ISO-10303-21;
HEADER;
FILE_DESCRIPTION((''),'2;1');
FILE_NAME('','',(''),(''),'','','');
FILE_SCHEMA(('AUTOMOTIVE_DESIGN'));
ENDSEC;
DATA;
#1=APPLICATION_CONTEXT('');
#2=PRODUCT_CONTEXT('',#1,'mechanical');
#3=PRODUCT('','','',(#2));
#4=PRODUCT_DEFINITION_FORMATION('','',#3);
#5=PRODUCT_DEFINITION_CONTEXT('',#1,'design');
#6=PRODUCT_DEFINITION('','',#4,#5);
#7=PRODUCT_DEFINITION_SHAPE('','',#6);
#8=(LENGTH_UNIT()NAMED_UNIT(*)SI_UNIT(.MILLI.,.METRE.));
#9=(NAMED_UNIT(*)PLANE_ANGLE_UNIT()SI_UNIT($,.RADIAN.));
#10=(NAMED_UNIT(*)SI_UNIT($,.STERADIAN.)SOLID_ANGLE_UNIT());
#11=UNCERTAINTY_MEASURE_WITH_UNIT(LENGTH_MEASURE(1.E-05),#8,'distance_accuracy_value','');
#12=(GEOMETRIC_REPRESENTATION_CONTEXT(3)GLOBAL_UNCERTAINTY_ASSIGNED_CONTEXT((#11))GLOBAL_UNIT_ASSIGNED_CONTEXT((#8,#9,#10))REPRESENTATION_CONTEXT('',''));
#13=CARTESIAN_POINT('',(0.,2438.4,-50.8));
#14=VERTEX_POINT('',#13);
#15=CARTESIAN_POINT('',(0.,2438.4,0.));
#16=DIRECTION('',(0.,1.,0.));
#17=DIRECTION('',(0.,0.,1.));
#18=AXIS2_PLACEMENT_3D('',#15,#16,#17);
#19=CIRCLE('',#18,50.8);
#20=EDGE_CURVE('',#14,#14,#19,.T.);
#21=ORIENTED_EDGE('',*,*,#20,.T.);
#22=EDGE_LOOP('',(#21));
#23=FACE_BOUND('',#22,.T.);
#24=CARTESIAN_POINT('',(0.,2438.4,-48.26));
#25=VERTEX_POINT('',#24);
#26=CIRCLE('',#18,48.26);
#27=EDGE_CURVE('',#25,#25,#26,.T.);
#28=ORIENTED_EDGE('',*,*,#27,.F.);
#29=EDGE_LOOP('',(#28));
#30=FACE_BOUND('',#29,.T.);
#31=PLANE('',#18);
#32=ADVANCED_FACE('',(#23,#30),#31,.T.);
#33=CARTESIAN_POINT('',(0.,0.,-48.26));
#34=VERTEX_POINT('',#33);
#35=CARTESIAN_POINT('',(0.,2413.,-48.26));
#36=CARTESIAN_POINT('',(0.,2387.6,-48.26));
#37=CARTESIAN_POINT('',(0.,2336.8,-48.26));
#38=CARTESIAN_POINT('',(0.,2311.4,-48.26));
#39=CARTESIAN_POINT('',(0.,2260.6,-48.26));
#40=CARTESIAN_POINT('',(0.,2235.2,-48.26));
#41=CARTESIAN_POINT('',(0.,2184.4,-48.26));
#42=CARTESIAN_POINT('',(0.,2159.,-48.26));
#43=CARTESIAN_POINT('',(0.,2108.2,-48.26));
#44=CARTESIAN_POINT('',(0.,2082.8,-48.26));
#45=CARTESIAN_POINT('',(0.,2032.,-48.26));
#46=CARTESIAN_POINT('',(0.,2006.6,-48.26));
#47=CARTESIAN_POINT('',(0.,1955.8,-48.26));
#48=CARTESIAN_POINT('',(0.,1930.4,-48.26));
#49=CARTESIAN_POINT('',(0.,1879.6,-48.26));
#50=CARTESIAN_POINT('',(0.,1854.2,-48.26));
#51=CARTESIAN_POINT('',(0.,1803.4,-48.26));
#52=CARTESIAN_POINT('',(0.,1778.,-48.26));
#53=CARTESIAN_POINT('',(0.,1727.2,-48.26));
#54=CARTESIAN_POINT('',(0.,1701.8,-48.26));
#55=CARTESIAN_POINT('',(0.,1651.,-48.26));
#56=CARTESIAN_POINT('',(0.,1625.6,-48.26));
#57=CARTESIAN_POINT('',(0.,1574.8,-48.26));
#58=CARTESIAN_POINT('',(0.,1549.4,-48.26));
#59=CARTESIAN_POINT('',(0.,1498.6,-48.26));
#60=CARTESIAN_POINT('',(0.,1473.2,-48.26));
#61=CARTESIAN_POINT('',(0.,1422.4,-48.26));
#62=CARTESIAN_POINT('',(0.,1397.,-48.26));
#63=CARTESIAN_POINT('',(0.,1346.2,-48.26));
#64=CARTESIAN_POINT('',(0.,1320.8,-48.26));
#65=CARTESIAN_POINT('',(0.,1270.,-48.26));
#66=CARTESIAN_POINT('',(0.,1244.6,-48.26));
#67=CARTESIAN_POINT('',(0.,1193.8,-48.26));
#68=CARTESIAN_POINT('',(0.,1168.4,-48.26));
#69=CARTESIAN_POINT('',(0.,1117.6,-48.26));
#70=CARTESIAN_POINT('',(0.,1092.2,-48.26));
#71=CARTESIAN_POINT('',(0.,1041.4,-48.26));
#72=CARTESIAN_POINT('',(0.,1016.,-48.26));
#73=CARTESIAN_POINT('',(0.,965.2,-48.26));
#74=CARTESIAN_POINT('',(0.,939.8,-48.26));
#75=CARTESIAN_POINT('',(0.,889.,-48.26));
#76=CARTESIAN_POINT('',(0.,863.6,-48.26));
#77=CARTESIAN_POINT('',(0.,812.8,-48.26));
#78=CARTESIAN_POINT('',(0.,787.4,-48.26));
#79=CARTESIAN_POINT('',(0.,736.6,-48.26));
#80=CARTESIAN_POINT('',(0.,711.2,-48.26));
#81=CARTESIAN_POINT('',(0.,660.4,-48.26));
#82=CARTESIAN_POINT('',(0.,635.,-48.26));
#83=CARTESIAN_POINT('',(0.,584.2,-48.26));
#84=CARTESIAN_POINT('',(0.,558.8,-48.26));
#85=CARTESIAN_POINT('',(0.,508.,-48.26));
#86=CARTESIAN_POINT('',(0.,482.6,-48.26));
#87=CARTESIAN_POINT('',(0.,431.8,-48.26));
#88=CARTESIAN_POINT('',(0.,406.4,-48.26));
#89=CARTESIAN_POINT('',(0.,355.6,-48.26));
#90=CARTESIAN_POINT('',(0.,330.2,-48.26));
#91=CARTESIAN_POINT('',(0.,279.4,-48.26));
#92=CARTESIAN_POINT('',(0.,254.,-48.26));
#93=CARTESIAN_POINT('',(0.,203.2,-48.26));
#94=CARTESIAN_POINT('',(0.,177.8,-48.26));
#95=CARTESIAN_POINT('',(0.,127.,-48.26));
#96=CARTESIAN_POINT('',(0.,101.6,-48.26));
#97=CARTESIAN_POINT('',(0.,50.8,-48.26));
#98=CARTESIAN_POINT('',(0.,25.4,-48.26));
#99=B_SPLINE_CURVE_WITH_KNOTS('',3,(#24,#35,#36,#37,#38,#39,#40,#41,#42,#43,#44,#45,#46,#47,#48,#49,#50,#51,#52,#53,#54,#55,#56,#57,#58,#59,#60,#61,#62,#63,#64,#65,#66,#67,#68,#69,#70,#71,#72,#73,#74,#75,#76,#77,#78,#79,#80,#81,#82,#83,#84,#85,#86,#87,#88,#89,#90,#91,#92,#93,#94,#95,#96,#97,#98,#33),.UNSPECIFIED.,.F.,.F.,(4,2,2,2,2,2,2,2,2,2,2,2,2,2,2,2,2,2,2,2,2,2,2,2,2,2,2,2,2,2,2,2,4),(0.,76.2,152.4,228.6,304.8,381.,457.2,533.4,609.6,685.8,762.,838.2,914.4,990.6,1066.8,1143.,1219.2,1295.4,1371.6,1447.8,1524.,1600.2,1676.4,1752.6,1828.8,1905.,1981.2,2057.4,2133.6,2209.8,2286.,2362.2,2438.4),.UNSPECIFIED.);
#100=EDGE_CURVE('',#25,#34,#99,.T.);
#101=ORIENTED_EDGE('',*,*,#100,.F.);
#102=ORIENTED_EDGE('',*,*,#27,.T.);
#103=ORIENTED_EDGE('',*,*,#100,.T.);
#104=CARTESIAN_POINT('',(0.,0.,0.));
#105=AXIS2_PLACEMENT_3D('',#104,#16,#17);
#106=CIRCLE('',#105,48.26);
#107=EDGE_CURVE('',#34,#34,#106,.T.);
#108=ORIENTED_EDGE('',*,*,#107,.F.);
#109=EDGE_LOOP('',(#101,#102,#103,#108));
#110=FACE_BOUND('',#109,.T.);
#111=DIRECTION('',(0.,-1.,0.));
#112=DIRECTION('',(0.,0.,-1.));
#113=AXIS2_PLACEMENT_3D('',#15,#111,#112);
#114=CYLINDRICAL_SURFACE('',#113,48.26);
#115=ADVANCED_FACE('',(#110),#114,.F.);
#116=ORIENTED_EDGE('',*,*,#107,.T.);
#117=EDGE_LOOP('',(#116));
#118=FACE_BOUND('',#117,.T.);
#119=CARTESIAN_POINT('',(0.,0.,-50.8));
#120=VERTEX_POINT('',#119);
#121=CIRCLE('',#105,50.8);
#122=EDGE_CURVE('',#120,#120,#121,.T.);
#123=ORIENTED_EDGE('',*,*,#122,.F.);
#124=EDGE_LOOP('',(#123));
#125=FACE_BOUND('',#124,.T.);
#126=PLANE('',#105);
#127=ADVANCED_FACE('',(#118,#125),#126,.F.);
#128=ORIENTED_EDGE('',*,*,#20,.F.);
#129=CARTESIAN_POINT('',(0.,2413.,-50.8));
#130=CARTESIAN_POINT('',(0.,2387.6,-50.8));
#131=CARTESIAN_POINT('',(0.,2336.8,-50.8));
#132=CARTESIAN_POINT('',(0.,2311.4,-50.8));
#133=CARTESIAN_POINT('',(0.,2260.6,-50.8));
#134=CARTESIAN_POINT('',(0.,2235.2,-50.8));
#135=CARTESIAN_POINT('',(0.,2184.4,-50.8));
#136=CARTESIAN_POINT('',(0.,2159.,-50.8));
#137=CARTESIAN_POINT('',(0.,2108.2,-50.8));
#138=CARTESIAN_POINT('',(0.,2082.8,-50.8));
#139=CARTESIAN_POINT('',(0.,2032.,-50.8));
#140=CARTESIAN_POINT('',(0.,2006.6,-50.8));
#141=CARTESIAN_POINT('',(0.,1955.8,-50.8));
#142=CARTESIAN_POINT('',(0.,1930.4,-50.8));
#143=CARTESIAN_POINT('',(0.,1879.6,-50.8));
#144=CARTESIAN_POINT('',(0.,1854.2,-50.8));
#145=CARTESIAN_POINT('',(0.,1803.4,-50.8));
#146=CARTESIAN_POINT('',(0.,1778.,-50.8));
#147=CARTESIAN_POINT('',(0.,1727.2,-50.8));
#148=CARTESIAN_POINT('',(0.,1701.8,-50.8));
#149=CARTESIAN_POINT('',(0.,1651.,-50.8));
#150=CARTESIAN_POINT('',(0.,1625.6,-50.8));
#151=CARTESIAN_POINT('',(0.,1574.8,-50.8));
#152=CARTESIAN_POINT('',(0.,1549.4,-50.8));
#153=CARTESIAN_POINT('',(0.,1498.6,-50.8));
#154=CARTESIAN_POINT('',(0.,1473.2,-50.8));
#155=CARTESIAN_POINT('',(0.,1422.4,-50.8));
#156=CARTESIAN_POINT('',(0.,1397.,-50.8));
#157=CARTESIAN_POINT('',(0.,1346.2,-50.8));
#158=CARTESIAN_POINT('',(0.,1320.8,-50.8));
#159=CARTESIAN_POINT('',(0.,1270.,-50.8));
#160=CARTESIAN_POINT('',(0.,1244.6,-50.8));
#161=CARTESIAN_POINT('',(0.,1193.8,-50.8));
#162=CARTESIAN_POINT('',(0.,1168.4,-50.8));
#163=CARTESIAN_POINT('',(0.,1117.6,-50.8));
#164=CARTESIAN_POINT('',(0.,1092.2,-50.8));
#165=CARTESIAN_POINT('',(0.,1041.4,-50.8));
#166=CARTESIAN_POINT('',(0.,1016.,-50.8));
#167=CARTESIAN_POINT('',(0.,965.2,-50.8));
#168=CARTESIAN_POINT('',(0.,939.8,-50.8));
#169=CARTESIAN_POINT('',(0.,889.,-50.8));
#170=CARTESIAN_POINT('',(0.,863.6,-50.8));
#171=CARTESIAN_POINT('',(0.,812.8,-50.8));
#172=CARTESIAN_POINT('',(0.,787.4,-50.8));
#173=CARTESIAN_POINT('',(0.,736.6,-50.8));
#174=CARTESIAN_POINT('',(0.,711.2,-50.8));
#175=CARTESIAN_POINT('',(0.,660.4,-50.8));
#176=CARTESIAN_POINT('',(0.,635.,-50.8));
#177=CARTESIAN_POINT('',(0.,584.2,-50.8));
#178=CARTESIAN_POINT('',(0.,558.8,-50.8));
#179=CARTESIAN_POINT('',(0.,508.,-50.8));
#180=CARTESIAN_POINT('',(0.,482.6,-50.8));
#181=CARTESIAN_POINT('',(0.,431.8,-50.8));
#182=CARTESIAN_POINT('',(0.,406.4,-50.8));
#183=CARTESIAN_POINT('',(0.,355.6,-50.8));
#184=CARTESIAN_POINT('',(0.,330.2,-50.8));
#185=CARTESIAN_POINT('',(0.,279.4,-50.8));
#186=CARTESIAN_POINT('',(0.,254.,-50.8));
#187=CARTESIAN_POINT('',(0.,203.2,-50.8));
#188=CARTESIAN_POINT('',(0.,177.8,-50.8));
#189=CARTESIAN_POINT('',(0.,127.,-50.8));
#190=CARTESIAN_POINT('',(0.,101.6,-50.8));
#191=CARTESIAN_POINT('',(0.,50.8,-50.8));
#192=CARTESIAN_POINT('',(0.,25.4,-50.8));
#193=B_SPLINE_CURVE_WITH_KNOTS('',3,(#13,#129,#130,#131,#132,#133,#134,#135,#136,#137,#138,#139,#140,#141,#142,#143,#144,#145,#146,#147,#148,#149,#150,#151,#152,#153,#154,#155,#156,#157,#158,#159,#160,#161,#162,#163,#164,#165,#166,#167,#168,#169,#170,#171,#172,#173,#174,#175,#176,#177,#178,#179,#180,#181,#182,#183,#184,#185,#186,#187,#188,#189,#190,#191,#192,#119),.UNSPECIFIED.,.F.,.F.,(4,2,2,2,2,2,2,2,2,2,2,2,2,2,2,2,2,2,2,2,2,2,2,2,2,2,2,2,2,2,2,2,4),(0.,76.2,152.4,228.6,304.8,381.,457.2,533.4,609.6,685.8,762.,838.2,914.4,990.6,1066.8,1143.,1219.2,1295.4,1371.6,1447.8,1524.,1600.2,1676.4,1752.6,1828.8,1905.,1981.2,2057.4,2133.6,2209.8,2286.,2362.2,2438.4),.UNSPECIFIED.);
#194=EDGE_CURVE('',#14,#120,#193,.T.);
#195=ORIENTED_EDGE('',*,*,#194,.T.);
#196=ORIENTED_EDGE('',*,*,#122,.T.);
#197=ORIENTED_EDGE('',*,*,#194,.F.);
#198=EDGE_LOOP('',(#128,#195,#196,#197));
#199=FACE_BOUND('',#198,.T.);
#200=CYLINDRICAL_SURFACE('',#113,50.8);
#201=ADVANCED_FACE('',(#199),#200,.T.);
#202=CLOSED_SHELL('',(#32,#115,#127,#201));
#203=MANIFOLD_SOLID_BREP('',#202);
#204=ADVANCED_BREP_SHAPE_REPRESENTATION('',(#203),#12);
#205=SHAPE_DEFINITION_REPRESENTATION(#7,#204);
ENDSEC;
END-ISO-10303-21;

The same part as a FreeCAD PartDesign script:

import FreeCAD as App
import Part
import Sketcher

V = App.Vector
Q = App.Units.Quantity

doc = App.newDocument("Part")
body = doc.addObject("PartDesign::Body", "Body")

# Sketch on XZ plane
sketch1 = doc.addObject("Sketcher::SketchObject", "Sketch")
body.addObject(sketch1)
sketch1.AttachmentSupport = (doc.XZ_Plane, [""])
sketch1.MapMode = "FlatFace"
sketch1.addGeometry([
    Part.Circle(V(0, 0, 0), V(0, 0, 1), 51),
    Part.Circle(V(0, 0, 0), V(0, 0, 1), 48),
], False)
sketch1.addConstraint([
    Sketcher.Constraint("Coincident", 0, 3, -1, 1),
    Sketcher.Constraint("Coincident", 1, 3, -1, 1),
    Sketcher.Constraint("Diameter", 0, Q("4 in")),
    Sketcher.Constraint("Diameter", 1, Q("3.8 in")),
])
pad1 = doc.addObject("PartDesign::Pad", "Pad")
body.addObject(pad1)
pad1.Profile = sketch1
pad1.Length = Q("96 in")
pad1.Reversed = True

doc.recompute()
